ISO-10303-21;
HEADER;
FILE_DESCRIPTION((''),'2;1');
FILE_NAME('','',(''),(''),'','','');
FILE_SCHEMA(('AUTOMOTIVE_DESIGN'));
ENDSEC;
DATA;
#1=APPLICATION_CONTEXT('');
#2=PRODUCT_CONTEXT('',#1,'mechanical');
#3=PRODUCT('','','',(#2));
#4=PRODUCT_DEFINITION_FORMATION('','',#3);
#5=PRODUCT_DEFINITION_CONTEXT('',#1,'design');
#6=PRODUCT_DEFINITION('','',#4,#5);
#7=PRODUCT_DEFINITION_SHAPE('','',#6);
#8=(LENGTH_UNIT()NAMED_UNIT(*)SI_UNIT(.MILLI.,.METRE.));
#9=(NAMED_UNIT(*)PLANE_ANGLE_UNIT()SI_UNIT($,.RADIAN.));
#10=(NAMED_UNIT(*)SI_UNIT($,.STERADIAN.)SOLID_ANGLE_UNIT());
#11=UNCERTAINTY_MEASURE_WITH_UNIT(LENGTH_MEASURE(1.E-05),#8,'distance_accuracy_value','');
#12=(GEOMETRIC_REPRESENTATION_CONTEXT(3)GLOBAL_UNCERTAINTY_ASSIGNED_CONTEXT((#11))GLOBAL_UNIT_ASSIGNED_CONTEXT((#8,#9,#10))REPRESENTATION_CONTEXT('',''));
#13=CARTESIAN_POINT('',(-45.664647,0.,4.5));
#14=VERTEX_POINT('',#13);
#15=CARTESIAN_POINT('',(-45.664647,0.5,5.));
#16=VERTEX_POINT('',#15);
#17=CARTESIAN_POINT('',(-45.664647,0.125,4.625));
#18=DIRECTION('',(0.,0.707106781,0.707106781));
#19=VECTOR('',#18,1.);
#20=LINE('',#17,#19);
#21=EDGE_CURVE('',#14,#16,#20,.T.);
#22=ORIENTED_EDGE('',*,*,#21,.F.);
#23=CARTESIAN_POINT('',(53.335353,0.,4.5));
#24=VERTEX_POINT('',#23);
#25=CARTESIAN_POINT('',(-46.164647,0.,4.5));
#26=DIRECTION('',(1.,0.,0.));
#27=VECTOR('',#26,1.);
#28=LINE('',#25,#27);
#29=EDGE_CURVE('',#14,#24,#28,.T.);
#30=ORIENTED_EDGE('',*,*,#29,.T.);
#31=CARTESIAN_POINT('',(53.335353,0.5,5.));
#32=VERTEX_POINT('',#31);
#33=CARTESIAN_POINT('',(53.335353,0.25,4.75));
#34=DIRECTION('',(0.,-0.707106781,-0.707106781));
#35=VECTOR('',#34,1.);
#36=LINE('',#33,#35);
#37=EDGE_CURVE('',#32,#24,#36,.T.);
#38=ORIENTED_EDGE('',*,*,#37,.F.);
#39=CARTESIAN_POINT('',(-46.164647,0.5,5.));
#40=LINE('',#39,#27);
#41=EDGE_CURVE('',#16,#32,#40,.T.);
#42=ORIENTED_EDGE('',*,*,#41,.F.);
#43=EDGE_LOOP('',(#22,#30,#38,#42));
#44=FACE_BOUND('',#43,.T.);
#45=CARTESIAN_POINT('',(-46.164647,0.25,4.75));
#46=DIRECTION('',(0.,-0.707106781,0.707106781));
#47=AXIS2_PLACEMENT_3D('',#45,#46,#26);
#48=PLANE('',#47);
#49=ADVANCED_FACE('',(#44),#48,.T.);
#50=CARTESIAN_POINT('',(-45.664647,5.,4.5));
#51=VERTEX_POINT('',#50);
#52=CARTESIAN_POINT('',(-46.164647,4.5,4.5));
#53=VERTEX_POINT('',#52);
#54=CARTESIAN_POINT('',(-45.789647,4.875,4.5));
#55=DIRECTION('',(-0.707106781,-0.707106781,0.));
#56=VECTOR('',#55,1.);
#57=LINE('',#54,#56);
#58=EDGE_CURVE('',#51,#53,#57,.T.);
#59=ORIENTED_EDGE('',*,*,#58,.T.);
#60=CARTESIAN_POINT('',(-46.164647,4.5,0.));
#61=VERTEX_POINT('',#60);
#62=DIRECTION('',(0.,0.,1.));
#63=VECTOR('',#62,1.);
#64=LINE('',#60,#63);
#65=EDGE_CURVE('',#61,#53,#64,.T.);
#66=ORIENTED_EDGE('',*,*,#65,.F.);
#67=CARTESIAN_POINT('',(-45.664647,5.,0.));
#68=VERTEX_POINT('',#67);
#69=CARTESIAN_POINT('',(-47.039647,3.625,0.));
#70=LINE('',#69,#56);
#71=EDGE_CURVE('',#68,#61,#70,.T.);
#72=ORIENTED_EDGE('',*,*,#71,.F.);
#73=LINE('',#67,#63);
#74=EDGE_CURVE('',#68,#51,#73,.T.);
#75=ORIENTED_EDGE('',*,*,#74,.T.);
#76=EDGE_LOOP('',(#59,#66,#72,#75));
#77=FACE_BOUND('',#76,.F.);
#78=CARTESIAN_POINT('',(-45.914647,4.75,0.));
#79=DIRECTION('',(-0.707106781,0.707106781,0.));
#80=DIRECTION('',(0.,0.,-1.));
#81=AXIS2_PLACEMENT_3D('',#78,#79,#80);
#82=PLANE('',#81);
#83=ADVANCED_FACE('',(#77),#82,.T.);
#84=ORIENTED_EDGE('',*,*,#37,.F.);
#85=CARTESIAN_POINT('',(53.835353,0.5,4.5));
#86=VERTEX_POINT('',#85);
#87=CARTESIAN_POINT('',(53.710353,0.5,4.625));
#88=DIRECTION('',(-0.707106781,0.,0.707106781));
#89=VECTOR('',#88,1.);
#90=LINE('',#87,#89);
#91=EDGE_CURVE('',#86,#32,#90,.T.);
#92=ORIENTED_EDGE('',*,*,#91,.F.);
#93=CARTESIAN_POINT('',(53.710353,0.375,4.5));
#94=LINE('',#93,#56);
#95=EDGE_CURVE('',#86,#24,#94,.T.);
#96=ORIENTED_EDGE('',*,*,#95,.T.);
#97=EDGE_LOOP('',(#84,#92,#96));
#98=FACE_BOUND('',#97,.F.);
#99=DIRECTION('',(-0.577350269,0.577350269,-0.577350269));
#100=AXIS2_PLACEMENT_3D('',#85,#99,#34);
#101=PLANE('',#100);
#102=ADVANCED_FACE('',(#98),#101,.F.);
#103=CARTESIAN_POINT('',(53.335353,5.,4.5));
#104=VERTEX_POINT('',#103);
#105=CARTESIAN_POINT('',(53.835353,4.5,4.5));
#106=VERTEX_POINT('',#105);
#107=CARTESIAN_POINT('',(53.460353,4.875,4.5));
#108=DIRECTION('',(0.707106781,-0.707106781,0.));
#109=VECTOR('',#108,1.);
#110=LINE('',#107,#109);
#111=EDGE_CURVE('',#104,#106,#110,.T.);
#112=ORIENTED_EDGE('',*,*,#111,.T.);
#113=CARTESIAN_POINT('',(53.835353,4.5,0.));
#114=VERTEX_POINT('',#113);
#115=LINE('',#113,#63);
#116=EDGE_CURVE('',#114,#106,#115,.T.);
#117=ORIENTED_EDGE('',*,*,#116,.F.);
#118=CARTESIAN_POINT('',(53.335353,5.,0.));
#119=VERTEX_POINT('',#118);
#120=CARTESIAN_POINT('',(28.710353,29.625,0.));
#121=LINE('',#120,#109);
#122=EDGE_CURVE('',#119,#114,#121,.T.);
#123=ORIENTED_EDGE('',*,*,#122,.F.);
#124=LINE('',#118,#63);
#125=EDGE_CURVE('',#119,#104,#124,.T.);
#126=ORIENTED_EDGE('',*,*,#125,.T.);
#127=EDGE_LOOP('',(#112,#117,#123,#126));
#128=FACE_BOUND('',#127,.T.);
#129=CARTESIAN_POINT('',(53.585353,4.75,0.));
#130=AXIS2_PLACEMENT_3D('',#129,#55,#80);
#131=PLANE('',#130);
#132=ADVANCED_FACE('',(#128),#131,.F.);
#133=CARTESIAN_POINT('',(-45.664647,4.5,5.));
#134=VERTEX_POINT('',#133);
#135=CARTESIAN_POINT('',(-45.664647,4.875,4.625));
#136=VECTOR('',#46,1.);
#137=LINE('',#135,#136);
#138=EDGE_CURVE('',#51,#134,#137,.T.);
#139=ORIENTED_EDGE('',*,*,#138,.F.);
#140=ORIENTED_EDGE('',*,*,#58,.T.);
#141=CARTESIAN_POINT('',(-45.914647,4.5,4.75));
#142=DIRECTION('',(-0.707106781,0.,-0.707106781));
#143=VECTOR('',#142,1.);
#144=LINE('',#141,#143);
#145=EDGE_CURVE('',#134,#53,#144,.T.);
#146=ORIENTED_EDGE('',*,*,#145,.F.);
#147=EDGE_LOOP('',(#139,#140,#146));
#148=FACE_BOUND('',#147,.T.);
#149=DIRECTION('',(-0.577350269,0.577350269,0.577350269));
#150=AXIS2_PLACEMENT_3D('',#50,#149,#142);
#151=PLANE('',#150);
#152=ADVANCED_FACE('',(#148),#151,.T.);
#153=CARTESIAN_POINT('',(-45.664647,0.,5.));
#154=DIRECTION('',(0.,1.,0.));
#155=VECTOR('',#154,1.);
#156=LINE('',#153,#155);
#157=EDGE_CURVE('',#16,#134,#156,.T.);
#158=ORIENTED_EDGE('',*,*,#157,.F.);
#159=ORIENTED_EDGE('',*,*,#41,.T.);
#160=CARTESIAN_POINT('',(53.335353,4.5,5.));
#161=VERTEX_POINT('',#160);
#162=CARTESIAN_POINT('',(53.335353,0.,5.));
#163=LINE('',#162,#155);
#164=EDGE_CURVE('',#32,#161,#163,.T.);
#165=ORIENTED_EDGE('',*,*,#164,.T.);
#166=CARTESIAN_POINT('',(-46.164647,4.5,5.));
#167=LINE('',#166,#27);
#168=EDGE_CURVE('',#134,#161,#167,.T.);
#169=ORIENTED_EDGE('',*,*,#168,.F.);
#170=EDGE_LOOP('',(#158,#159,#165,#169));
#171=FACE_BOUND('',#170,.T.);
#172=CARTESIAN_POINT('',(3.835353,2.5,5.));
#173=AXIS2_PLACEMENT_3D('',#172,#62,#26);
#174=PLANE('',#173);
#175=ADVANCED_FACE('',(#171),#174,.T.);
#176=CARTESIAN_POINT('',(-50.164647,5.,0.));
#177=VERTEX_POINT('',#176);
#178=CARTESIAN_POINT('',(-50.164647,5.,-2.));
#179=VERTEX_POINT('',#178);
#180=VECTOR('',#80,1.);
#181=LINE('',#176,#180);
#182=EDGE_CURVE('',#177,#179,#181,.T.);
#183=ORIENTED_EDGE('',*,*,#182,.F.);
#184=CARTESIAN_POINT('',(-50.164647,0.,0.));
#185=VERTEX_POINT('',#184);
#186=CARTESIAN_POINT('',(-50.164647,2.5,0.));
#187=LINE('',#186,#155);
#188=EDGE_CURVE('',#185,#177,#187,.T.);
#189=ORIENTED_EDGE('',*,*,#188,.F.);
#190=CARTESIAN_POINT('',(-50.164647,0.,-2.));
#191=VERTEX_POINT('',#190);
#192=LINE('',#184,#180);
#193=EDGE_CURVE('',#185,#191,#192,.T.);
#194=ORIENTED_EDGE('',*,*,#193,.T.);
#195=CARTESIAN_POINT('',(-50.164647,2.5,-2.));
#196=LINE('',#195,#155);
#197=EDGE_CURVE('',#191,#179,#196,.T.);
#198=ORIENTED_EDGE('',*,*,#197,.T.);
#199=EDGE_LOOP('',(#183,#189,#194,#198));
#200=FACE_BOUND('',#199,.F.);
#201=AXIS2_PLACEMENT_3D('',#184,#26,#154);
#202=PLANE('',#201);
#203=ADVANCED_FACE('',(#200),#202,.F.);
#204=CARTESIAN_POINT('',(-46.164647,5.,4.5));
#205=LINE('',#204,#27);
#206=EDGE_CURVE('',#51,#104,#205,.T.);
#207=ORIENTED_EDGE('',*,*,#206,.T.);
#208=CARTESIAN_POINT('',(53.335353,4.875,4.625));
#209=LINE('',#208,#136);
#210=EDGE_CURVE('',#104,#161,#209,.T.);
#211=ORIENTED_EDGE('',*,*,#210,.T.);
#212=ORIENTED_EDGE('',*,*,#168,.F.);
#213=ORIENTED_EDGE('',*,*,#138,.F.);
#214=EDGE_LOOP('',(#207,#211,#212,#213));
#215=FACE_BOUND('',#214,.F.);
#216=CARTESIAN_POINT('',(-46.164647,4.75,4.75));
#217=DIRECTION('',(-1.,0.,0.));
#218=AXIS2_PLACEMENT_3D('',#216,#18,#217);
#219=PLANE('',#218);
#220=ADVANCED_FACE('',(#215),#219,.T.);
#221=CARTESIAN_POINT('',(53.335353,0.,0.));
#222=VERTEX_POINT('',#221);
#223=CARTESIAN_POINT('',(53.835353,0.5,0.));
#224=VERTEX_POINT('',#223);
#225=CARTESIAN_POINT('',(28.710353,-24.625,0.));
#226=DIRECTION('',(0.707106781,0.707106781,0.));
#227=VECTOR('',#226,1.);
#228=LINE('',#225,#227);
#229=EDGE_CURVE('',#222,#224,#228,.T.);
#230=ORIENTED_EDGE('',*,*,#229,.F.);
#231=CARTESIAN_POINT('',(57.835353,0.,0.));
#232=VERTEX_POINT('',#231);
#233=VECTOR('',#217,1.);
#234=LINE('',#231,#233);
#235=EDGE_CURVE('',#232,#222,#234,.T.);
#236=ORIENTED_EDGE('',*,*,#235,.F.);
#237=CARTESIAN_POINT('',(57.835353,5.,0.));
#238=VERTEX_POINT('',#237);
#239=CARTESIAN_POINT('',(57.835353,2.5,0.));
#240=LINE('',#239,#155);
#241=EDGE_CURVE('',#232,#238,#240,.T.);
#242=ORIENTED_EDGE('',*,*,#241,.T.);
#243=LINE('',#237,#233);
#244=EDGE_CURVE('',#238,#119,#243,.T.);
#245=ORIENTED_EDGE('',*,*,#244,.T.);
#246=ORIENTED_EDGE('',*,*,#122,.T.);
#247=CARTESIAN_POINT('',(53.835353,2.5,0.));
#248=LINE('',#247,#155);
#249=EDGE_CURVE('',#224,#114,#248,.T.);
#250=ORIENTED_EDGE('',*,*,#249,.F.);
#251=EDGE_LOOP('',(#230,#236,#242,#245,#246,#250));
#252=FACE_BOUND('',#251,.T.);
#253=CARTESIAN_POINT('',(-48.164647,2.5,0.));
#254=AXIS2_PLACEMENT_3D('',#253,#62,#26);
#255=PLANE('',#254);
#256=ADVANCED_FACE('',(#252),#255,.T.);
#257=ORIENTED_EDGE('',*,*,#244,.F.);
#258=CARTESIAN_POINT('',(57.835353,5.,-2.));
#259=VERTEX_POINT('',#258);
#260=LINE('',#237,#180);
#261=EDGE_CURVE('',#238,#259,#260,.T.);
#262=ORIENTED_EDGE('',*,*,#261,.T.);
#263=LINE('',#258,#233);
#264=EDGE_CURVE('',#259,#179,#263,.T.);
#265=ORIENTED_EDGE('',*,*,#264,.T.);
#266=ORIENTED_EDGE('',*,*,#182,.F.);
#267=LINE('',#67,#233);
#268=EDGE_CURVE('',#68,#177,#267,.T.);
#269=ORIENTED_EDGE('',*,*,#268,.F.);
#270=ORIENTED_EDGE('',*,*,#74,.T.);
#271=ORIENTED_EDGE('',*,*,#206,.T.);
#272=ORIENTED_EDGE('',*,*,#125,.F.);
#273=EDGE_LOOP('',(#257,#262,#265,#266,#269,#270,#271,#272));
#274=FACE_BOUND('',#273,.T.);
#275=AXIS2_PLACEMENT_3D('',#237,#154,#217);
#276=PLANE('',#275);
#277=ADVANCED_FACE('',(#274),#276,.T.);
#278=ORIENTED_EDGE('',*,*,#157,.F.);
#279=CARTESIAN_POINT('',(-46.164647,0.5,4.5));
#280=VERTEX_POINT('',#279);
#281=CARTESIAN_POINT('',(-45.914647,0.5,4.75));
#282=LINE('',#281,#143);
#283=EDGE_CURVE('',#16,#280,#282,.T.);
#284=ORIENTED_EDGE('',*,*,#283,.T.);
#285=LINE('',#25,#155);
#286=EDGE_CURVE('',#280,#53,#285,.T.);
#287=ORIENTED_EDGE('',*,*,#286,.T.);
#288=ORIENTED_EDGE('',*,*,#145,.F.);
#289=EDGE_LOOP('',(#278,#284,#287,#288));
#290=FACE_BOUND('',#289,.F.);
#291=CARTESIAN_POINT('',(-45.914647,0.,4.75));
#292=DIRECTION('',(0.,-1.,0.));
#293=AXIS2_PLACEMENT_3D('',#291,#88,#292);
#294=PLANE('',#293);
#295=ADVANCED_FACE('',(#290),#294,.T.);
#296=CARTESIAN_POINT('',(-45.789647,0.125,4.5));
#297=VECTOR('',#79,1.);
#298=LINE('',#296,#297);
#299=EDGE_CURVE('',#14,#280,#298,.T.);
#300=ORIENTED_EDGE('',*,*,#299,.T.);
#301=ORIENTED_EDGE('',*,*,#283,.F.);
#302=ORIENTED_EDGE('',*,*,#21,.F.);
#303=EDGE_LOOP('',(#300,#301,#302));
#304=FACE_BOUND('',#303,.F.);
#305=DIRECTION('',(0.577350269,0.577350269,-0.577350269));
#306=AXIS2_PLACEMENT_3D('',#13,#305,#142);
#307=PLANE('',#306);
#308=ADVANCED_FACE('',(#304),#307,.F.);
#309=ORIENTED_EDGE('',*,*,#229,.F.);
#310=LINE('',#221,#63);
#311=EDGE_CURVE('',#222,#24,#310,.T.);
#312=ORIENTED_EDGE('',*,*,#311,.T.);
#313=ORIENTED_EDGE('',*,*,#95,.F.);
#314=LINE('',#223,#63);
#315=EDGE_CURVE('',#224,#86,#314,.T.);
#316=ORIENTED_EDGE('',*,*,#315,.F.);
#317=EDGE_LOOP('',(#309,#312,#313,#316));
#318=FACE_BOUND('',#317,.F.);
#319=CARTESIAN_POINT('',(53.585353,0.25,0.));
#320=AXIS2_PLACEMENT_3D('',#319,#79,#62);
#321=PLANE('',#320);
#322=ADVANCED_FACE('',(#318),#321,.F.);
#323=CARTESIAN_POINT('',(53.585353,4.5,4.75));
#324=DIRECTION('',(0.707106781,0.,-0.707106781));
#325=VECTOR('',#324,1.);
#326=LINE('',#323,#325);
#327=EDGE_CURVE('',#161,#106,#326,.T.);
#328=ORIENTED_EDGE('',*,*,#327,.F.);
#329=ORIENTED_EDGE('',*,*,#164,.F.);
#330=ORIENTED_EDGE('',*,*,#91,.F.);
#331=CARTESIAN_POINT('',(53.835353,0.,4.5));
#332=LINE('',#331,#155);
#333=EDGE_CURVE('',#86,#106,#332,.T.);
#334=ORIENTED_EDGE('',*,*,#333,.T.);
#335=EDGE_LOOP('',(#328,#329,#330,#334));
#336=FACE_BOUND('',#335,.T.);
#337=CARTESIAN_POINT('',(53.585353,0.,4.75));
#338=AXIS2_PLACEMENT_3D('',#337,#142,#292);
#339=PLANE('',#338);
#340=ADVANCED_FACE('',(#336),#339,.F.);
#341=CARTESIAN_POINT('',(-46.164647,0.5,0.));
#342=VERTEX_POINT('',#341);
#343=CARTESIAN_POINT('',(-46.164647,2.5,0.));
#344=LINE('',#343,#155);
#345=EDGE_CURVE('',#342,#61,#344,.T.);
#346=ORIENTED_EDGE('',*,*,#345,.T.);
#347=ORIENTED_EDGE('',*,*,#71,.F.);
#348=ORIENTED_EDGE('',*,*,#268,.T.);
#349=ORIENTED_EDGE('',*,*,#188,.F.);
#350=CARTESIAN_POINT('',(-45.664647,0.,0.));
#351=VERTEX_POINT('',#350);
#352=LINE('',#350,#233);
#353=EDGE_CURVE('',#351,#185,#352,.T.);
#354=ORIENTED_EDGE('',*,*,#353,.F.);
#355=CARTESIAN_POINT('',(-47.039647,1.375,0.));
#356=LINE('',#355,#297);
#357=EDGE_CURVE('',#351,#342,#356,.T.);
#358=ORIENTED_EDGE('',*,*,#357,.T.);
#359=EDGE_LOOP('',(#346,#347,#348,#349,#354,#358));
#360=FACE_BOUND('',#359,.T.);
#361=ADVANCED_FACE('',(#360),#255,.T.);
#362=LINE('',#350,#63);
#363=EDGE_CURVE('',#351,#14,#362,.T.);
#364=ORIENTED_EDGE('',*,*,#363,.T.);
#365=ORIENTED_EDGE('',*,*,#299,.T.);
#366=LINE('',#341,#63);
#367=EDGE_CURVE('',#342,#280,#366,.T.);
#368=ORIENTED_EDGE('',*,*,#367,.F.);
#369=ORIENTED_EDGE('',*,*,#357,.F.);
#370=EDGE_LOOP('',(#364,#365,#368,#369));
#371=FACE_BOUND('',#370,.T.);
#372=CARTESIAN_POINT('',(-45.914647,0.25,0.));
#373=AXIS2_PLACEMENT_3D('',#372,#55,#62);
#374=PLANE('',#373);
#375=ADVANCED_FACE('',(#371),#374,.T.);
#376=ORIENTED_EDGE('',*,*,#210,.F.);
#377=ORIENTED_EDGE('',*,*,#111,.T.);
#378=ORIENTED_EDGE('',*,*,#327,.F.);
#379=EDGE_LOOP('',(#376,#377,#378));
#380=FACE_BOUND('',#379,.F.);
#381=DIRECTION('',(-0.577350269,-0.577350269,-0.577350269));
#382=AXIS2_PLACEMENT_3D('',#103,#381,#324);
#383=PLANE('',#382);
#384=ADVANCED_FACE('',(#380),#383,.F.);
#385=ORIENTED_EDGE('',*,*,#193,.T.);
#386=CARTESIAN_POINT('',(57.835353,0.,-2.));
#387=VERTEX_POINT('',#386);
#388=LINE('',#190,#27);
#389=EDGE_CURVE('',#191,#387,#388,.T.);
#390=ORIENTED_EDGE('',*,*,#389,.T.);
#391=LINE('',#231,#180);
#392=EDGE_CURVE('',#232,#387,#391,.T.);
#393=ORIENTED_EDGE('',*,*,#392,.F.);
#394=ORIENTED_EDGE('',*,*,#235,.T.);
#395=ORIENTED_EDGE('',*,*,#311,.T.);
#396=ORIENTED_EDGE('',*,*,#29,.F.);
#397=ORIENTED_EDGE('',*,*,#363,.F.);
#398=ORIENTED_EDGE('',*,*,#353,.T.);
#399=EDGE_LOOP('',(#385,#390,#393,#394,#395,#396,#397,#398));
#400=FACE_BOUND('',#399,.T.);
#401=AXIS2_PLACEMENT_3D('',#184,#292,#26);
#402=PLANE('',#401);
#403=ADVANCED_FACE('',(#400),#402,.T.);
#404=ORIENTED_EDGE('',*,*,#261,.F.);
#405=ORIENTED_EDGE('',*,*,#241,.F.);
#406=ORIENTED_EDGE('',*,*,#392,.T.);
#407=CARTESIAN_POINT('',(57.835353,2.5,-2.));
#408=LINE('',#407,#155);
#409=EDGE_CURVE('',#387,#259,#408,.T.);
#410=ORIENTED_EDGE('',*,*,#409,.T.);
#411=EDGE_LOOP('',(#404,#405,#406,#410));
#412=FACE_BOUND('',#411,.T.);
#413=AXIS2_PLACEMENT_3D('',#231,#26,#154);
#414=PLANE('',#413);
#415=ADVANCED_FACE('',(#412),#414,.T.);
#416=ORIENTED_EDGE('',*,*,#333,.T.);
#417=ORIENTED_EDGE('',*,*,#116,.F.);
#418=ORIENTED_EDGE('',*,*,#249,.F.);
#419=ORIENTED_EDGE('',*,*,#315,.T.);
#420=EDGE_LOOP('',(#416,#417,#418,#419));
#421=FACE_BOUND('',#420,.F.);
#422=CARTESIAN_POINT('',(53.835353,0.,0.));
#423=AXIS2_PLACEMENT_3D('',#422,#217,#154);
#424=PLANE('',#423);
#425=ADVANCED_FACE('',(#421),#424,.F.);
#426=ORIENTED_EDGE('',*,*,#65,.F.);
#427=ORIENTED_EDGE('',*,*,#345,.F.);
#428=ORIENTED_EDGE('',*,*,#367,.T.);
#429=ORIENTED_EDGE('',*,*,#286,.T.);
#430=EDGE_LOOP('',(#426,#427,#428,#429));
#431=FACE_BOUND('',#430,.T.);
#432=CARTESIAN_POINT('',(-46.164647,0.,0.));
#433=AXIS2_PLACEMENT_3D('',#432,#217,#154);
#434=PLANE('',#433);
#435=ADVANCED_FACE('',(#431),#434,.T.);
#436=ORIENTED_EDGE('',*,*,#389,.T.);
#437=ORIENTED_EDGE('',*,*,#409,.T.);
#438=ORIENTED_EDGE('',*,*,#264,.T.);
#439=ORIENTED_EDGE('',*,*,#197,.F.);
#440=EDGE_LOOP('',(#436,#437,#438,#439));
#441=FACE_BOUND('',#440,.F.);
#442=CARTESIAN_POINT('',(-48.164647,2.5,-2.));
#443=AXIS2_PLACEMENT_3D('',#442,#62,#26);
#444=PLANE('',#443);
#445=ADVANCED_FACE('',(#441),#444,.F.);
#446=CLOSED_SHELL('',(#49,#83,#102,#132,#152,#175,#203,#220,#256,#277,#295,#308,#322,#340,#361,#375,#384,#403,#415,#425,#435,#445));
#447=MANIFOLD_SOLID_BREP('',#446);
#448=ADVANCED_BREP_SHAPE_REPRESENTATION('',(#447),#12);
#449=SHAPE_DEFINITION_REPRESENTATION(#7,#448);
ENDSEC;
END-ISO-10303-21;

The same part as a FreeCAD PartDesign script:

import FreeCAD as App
import Part
import Sketcher

V = App.Vector


def edges_at(feature, points):
    """Names of the edges that pass closest to the given points."""
    edges = feature.Shape.Edges
    near = lambda p: min(range(len(edges)), key=lambda i: edges[i].distToShape(Part.Vertex(*p))[0])
    return sorted({f"Edge{near(p) + 1}" for p in points})

doc = App.newDocument("Part")
params = doc.addObject("Spreadsheet::Sheet", "Params")
for row, (alias, value) in enumerate([
    ("sketch1_width", "100 mm"),
    ("sketch1_height", "5 mm"),
    ("pad1_length", "5 mm"),
    ("sketch2_width", "108 mm"),
    ("sketch2_height", "5 mm"),
    ("pad2_length", "2 mm"),
    ("chamfer_size", "0.5 mm"),
], start=1):
    params.set(f"A{row}", alias)
    params.set(f"B{row}", "=" + value)
    params.setAlias(f"B{row}", alias)

body = doc.addObject("PartDesign::Body", "Body")

# Sketch on XY plane
sketch1 = doc.addObject("Sketcher::SketchObject", "Sketch")
body.addObject(sketch1)
sketch1.AttachmentSupport = (doc.XY_Plane, [""])
sketch1.MapMode = "FlatFace"
sketch1.addGeometry(Part.LineSegment(V(-46.164647, 5, 0), V(-46.164647, 0, 0)), False)
sketch1.addGeometry(Part.LineSegment(V(-46.164647, 0, 0), V(53.835353, 0, 0)), False)
sketch1.addGeometry(Part.LineSegment(V(53.835353, 0, 0), V(53.835353, 5, 0)), False)
sketch1.addGeometry(Part.LineSegment(V(53.835353, 5, 0), V(-46.164647, 5, 0)), False)
sketch1.addConstraint(Sketcher.Constraint("Coincident", 0, 2, 1, 1))
sketch1.addConstraint(Sketcher.Constraint("Coincident", 1, 2, 2, 1))
sketch1.addConstraint(Sketcher.Constraint("Coincident", 2, 2, 3, 1))
sketch1.addConstraint(Sketcher.Constraint("Coincident", 3, 2, 0, 1))
sketch1.addConstraint(Sketcher.Constraint("Vertical", 0))
sketch1.addConstraint(Sketcher.Constraint("Horizontal", 1))
sketch1.addConstraint(Sketcher.Constraint("Vertical", 2))
sketch1.addConstraint(Sketcher.Constraint("Horizontal", 3))
sketch1.addConstraint(Sketcher.Constraint("PointOnObject", 0, 2, -1))
sketch1.addConstraint(Sketcher.Constraint("DistanceX", 1, 1, 1, 2, 100.0))
sketch1.addConstraint(Sketcher.Constraint("DistanceY", 0, 2, 0, 1, 5.0))
sketch1.addConstraint(Sketcher.Constraint("DistanceX", 0, 2, -1, 1, 46.164647))
sketch1.setExpression("Constraints[9]", "Params.sketch1_width")
sketch1.setExpression("Constraints[10]", "Params.sketch1_height")
pad1 = doc.addObject("PartDesign::Pad", "Pad")
body.addObject(pad1)
pad1.Profile = sketch1
pad1.setExpression("Length", "Params.pad1_length")

# Sketch on XY plane
sketch2 = doc.addObject("Sketcher::SketchObject", "Sketch001")
body.addObject(sketch2)
sketch2.AttachmentSupport = (doc.XY_Plane, [""])
sketch2.MapMode = "FlatFace"
sketch2.addGeometry(Part.LineSegment(V(-50.164647, 5, 0), V(-50.164647, 0, 0)), False)
sketch2.addGeometry(Part.LineSegment(V(-50.164647, 0, 0), V(57.835353, 0, 0)), False)
sketch2.addGeometry(Part.LineSegment(V(57.835353, 0, 0), V(57.835353, 5, 0)), False)
sketch2.addGeometry(Part.LineSegment(V(57.835353, 5, 0), V(-50.164647, 5, 0)), False)
sketch2.addConstraint(Sketcher.Constraint("Coincident", 0, 2, 1, 1))
sketch2.addConstraint(Sketcher.Constraint("Coincident", 1, 2, 2, 1))
sketch2.addConstraint(Sketcher.Constraint("Coincident", 2, 2, 3, 1))
sketch2.addConstraint(Sketcher.Constraint("Coincident", 3, 2, 0, 1))
sketch2.addConstraint(Sketcher.Constraint("Vertical", 0))
sketch2.addConstraint(Sketcher.Constraint("Horizontal", 1))
sketch2.addConstraint(Sketcher.Constraint("Vertical", 2))
sketch2.addConstraint(Sketcher.Constraint("Horizontal", 3))
sketch2.addConstraint(Sketcher.Constraint("PointOnObject", 0, 2, -1))
sketch2.addConstraint(Sketcher.Constraint("DistanceX", 1, 1, 1, 2, 108.0))
sketch2.addConstraint(Sketcher.Constraint("DistanceY", 0, 2, 0, 1, 5.0))
sketch2.addConstraint(Sketcher.Constraint("DistanceX", 0, 2, -1, 1, 50.164647))
sketch2.setExpression("Constraints[9]", "Params.sketch2_width")
sketch2.setExpression("Constraints[10]", "Params.sketch2_height")
pad2 = doc.addObject("PartDesign::Pad", "Pad001")
body.addObject(pad2)
pad2.Profile = sketch2
pad2.setExpression("Length", "Params.pad2_length")
pad2.Reversed = True
doc.recompute()

chamfer = doc.addObject("PartDesign::Chamfer", "Chamfer")
body.addObject(chamfer)
chamfer.Base = (pad2, edges_at(pad2, [
    (-46.165, 2.5, 5),
    (3.835, 0, 5),
    (53.835, 2.5, 5),
    (3.835, 5, 5),
    (53.835, 5, 2.5),
    (53.835, 0, 2.5),
    (-46.165, 0, 2.5),
    (-46.165, 5, 2.5),
]))
chamfer.setExpression("Size", "Params.chamfer_size")

doc.recompute()
